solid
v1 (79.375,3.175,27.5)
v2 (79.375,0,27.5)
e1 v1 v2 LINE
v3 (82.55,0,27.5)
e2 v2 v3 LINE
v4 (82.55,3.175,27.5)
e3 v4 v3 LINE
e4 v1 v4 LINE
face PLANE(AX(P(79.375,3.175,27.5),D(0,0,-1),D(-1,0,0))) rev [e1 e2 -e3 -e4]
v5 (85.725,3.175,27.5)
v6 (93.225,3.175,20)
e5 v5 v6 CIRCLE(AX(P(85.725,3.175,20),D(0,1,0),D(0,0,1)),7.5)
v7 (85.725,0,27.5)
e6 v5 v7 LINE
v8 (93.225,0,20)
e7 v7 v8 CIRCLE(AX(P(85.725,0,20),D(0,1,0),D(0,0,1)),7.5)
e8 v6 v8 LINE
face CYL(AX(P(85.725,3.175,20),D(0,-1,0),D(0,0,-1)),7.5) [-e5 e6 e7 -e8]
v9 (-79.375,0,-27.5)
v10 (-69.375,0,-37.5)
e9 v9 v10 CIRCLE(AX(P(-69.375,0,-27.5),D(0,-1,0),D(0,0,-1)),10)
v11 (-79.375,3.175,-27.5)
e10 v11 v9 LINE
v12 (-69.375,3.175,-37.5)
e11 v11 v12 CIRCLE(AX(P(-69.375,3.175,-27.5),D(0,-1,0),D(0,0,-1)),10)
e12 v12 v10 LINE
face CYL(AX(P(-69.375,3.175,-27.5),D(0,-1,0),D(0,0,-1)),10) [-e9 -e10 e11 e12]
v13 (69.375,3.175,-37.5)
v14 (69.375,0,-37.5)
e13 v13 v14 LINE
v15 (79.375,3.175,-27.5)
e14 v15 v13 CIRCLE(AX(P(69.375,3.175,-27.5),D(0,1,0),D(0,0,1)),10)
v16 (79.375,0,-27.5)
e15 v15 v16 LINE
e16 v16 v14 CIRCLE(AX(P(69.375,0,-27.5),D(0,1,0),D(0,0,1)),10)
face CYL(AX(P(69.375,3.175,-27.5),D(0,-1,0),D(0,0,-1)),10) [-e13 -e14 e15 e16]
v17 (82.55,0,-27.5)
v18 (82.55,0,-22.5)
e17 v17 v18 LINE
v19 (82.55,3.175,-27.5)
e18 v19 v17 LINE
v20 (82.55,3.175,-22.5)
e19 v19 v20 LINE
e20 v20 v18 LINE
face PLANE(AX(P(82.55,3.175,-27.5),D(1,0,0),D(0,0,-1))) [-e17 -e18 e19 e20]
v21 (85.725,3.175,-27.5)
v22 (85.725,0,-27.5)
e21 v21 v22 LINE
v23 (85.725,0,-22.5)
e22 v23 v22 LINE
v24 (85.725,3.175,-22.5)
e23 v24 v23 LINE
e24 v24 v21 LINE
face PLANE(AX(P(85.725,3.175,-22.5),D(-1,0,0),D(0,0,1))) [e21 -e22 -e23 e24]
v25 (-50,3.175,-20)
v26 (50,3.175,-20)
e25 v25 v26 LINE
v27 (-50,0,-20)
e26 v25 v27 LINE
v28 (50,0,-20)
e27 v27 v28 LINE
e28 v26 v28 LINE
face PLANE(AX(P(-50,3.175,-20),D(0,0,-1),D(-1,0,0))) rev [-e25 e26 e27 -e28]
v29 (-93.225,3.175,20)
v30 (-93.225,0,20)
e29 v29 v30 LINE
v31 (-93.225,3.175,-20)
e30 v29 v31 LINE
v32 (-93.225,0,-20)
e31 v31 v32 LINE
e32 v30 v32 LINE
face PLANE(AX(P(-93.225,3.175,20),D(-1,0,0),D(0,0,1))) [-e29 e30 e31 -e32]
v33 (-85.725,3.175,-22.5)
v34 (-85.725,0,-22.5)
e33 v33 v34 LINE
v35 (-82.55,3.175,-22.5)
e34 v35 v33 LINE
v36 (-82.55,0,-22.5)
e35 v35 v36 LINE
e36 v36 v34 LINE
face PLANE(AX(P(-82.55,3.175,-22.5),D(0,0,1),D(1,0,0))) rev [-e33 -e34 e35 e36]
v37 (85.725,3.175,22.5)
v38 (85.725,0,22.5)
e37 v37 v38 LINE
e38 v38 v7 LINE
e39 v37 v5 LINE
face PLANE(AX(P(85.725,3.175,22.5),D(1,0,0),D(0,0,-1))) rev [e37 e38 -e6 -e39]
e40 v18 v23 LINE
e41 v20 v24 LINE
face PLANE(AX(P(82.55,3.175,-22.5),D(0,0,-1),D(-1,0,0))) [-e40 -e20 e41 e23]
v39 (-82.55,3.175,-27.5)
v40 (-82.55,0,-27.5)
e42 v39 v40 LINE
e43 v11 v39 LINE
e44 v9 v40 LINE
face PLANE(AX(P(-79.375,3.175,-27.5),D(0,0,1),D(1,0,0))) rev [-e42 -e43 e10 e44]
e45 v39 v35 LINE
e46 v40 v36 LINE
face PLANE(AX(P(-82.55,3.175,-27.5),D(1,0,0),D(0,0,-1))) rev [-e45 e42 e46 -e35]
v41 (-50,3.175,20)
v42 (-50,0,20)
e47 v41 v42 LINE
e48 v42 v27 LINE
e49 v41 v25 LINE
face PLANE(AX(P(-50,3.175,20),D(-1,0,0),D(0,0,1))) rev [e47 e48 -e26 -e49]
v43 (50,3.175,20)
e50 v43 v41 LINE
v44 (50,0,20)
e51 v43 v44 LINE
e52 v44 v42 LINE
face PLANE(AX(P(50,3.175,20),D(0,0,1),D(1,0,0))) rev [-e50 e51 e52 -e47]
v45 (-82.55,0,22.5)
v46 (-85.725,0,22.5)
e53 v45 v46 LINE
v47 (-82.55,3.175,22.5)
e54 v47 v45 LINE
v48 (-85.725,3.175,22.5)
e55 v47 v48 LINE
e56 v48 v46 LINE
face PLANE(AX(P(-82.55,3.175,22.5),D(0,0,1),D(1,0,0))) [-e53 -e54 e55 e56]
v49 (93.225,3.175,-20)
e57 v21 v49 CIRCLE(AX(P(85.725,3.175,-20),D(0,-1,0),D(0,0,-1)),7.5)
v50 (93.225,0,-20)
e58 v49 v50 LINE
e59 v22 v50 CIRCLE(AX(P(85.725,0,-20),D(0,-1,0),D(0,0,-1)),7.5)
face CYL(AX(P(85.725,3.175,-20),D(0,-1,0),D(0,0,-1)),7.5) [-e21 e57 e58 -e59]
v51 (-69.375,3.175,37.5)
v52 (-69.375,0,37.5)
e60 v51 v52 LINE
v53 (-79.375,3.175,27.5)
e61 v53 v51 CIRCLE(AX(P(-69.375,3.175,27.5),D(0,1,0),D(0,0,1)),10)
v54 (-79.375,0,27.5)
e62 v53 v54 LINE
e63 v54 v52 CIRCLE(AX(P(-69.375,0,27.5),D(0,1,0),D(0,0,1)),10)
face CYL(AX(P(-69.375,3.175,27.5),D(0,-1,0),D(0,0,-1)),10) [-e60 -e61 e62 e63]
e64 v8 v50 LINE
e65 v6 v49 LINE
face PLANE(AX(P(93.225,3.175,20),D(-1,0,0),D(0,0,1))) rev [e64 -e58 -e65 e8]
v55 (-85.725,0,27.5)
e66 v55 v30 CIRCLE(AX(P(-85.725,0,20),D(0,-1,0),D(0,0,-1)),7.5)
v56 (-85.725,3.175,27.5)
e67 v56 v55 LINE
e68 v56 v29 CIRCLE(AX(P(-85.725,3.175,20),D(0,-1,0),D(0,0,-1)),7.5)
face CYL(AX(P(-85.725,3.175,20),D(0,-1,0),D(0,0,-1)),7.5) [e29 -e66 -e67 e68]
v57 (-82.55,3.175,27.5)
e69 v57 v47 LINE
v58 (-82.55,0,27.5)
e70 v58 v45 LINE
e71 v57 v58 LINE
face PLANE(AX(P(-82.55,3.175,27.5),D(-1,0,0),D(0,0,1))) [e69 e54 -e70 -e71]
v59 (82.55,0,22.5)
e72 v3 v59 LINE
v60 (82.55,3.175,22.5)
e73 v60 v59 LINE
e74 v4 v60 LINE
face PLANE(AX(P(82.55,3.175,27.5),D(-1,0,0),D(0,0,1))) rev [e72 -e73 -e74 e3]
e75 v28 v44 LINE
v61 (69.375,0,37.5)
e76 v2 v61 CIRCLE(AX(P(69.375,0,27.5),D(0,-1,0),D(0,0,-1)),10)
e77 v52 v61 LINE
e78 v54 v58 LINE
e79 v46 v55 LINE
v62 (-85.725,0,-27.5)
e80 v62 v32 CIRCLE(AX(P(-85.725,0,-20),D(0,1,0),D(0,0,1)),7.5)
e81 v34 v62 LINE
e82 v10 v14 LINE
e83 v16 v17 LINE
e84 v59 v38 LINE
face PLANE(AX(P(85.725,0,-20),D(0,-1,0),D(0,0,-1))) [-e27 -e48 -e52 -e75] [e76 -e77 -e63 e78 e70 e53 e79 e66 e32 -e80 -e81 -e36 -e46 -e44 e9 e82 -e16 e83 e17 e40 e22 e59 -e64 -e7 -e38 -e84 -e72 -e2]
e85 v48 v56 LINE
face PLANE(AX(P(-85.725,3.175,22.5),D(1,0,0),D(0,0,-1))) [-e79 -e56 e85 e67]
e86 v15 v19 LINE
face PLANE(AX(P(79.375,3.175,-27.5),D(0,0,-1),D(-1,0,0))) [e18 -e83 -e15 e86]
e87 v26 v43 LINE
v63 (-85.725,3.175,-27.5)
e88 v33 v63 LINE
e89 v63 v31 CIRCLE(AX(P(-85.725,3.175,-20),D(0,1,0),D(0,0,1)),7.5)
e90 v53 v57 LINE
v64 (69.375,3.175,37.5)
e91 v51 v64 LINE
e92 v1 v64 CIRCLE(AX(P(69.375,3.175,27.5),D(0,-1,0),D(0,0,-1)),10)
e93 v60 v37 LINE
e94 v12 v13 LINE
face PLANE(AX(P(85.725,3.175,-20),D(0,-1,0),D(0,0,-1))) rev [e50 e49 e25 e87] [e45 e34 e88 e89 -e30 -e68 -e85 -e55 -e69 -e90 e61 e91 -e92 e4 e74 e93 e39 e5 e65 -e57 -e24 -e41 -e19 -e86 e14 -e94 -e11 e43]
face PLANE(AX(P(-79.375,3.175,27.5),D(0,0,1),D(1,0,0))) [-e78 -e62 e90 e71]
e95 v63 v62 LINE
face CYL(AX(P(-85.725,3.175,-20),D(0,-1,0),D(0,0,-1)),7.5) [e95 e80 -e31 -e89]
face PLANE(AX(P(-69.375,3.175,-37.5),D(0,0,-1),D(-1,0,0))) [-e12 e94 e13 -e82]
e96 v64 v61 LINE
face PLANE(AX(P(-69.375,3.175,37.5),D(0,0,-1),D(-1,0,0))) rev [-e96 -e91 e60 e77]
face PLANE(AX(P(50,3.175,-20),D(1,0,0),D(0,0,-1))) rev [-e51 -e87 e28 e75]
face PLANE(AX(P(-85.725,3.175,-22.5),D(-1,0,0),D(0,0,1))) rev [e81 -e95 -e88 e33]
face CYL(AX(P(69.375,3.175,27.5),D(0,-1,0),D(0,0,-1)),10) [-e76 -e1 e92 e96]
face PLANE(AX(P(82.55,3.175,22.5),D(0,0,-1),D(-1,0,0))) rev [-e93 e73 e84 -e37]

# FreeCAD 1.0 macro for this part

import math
import FreeCAD as App
import Part
import Sketcher

V = App.Vector

doc = App.newDocument("Part")
params = doc.addObject("Spreadsheet::Sheet", "Params")
for row, (alias, value) in enumerate([
    ("sketch1_radius", "10 mm"),
    ("sketch1_radius2", "7.5 mm"),
    ("sketch1_width", "100 mm"),
    ("sketch1_height", "5 mm"),
    ("sketch1_height2", "40 mm"),
    ("pad1_length", "3.175 mm"),
], start=1):
    params.set(f"A{row}", alias)
    params.set(f"B{row}", "=" + value)
    params.setAlias(f"B{row}", alias)

body = doc.addObject("PartDesign::Body", "Body")

# Sketch on XZ plane
sketch1 = body.newObject("Sketcher::SketchObject", "Sketch")
sketch1.AttachmentSupport = (doc.getObject("XZ_Plane"), [""])
sketch1.MapMode = "FlatFace"
sketch1.addGeometry([
    Part.LineSegment(V(69.4, -37.5, 0), V(-69.4, -37.5, 0)),  # 0
    Part.ArcOfCircle(Part.Circle(V(-69.4, -27.5, 0), V(0, 0, 1), 10), math.radians(180), math.radians(270)),  # 1
    Part.LineSegment(V(-79.4, -27.5, 0), V(-82.5, -27.5, 0)),  # 2
    Part.LineSegment(V(-82.5, -27.5, 0), V(-82.5, -22.5, 0)),  # 3
    Part.LineSegment(V(-82.5, -22.5, 0), V(-85.7, -22.5, 0)),  # 4
    Part.LineSegment(V(-85.7, -22.5, 0), V(-85.7, -27.5, 0)),  # 5
    Part.ArcOfCircle(Part.Circle(V(-85.7, -20, 0), V(0, 0, 1), 7.5), math.radians(180), math.radians(270)),  # 6
    Part.LineSegment(V(-93.2, -20, 0), V(-93.2, 20, 0)),  # 7
    Part.ArcOfCircle(Part.Circle(V(-85.7, 20, 0), V(0, 0, 1), 7.5), math.radians(90), math.radians(180)),  # 8
    Part.LineSegment(V(-85.7, 27.5, 0), V(-85.7, 22.5, 0)),  # 9
    Part.LineSegment(V(-85.7, 22.5, 0), V(-82.5, 22.5, 0)),  # 10
    Part.LineSegment(V(-82.5, 22.5, 0), V(-82.5, 27.5, 0)),  # 11
    Part.LineSegment(V(-82.5, 27.5, 0), V(-79.4, 27.5, 0)),  # 12
    Part.ArcOfCircle(Part.Circle(V(-69.4, 27.5, 0), V(0, 0, 1), 10), math.radians(90), math.radians(180)),  # 13
    Part.LineSegment(V(-69.4, 37.5, 0), V(69.4, 37.5, 0)),  # 14
    Part.ArcOfCircle(Part.Circle(V(69.4, 27.5, 0), V(0, 0, 1), 10), math.radians(0), math.radians(90)),  # 15
    Part.LineSegment(V(79.4, 27.5, 0), V(82.5, 27.5, 0)),  # 16
    Part.LineSegment(V(82.5, 27.5, 0), V(82.5, 22.5, 0)),  # 17
    Part.LineSegment(V(82.5, 22.5, 0), V(85.7, 22.5, 0)),  # 18
    Part.LineSegment(V(85.7, 22.5, 0), V(85.7, 27.5, 0)),  # 19
    Part.ArcOfCircle(Part.Circle(V(85.7, 20, 0), V(0, 0, 1), 7.5), math.radians(0), math.radians(90)),  # 20
    Part.LineSegment(V(93.2, 20, 0), V(93.2, -20, 0)),  # 21
    Part.ArcOfCircle(Part.Circle(V(85.7, -20, 0), V(0, 0, 1), 7.5), math.radians(-90), math.radians(0)),  # 22
    Part.LineSegment(V(85.7, -27.5, 0), V(85.7, -22.5, 0)),  # 23
    Part.LineSegment(V(85.7, -22.5, 0), V(82.5, -22.5, 0)),  # 24
    Part.LineSegment(V(82.5, -22.5, 0), V(82.5, -27.5, 0)),  # 25
    Part.LineSegment(V(82.5, -27.5, 0), V(79.4, -27.5, 0)),  # 26
    Part.ArcOfCircle(Part.Circle(V(69.4, -27.5, 0), V(0, 0, 1), 10), math.radians(-90), math.radians(0)),  # 27
    Part.LineSegment(V(-50, 20, 0), V(-50, -20, 0)),  # 28
    Part.LineSegment(V(-50, -20, 0), V(50, -20, 0)),  # 29
    Part.LineSegment(V(50, -20, 0), V(50, 20, 0)),  # 30
    Part.LineSegment(V(50, 20, 0), V(-50, 20, 0)),  # 31
], False)
sketch1.addConstraint([
    Sketcher.Constraint("Tangent", 0, 2, 1, 2),
    Sketcher.Constraint("Coincident", 1, 1, 2, 1),
    Sketcher.Constraint("Coincident", 2, 2, 3, 1),
    Sketcher.Constraint("Coincident", 3, 2, 4, 1),
    Sketcher.Constraint("Coincident", 4, 2, 5, 1),
    Sketcher.Constraint("Coincident", 5, 2, 6, 2),
    Sketcher.Constraint("Tangent", 6, 1, 7, 1),
    Sketcher.Constraint("Tangent", 7, 2, 8, 2),
    Sketcher.Constraint("Coincident", 8, 1, 9, 1),
    Sketcher.Constraint("Coincident", 9, 2, 10, 1),
    Sketcher.Constraint("Coincident", 10, 2, 11, 1),
    Sketcher.Constraint("Coincident", 11, 2, 12, 1),
    Sketcher.Constraint("Coincident", 12, 2, 13, 2),
    Sketcher.Constraint("Tangent", 13, 1, 14, 1),
    Sketcher.Constraint("Tangent", 14, 2, 15, 2),
    Sketcher.Constraint("Coincident", 15, 1, 16, 1),
    Sketcher.Constraint("Coincident", 16, 2, 17, 1),
    Sketcher.Constraint("Coincident", 17, 2, 18, 1),
    Sketcher.Constraint("Coincident", 18, 2, 19, 1),
    Sketcher.Constraint("Coincident", 19, 2, 20, 2),
    Sketcher.Constraint("Tangent", 20, 1, 21, 1),
    Sketcher.Constraint("Tangent", 21, 2, 22, 2),
    Sketcher.Constraint("Coincident", 22, 1, 23, 1),
    Sketcher.Constraint("Coincident", 23, 2, 24, 1),
    Sketcher.Constraint("Coincident", 24, 2, 25, 1),
    Sketcher.Constraint("Coincident", 25, 2, 26, 1),
    Sketcher.Constraint("Coincident", 26, 2, 27, 2),
    Sketcher.Constraint("Tangent", 27, 1, 0, 1),
    Sketcher.Constraint("Coincident", 28, 2, 29, 1),
    Sketcher.Constraint("Coincident", 29, 2, 30, 1),
    Sketcher.Constraint("Coincident", 30, 2, 31, 1),
    Sketcher.Constraint("Coincident", 31, 2, 28, 1),
    Sketcher.Constraint("Horizontal", 0),
    Sketcher.Constraint("Horizontal", 2),
    Sketcher.Constraint("Vertical", 3),
    Sketcher.Constraint("Horizontal", 4),
    Sketcher.Constraint("Vertical", 5),
    Sketcher.Constraint("Vertical", 7),
    Sketcher.Constraint("Vertical", 9),
    Sketcher.Constraint("Horizontal", 10),
    Sketcher.Constraint("Vertical", 11),
    Sketcher.Constraint("Horizontal", 12),
    Sketcher.Constraint("Horizontal", 14),
    Sketcher.Constraint("Horizontal", 16),
    Sketcher.Constraint("Vertical", 17),
    Sketcher.Constraint("Horizontal", 18),
    Sketcher.Constraint("Vertical", 19),
    Sketcher.Constraint("Vertical", 21),
    Sketcher.Constraint("Vertical", 23),
    Sketcher.Constraint("Horizontal", 24),
    Sketcher.Constraint("Vertical", 25),
    Sketcher.Constraint("Horizontal", 26),
    Sketcher.Constraint("Vertical", 28),
    Sketcher.Constraint("Horizontal", 29),
    Sketcher.Constraint("Vertical", 30),
    Sketcher.Constraint("Horizontal", 31),
    Sketcher.Constraint("Equal", 6, 8),
    Sketcher.Constraint("Equal", 1, 13),
    Sketcher.Constraint("Equal", 13, 15),
    Sketcher.Constraint("Equal", 8, 20),
    Sketcher.Constraint("Equal", 20, 22),
    Sketcher.Constraint("Equal", 15, 27),
    Sketcher.Constraint("Symmetric", 1, 3, 15, 3, -1, 1),
    Sketcher.Constraint("Symmetric", 6, 3, 20, 3, -1, 1),
    Sketcher.Constraint("Symmetric", 2, 2, 16, 2, -1, 1),
    Sketcher.Constraint("Symmetric", 4, 2, 18, 2, -1, 1),
    Sketcher.Constraint("Symmetric", 8, 1, 22, 1, -1, 1),
    Sketcher.Constraint("Symmetric", 10, 2, 24, 2, -1, 1),
    Sketcher.Constraint("Symmetric", 12, 2, 26, 2, -1, 1),
    Sketcher.Constraint("Symmetric", 28, 2, 30, 2, -1, 1),
    Sketcher.Constraint("Symmetric", 12, 2, 15, 1, -2),
    Sketcher.Constraint("Symmetric", 10, 2, 17, 2, -2),
    Sketcher.Constraint("Symmetric", 8, 1, 19, 2, -2),
    Sketcher.Constraint("Horizontal", 27, 3, 1, 1),
    Sketcher.Constraint("Horizontal", 2, 2, 5, 2),
    Sketcher.Constraint("Horizontal", 21, 2, 28, 2),
    Sketcher.Constraint("Vertical", 8, 3, 4, 2),
    Sketcher.Constraint("Equal", 2, 4),
    Sketcher.Constraint("Radius", 1, 10.0),
    Sketcher.Constraint("Radius", 6, 7.5),
    Sketcher.Constraint("DistanceX", 29, 1, 29, 2, 100.0),
    Sketcher.Constraint("DistanceY", 3, 1, 3, 2, 5.0),
    Sketcher.Constraint("DistanceY", 7, 1, 7, 2, 40.0),
    Sketcher.Constraint("DistanceX", 0, 2, 0, 1, 138.75),
    Sketcher.Constraint("DistanceX", 8, 3, 15, 3, 155.1),
])
sketch1.setExpression("Constraints[78]", "Params.sketch1_radius")
sketch1.setExpression("Constraints[79]", "Params.sketch1_radius2")
sketch1.setExpression("Constraints[80]", "Params.sketch1_width")
sketch1.setExpression("Constraints[81]", "Params.sketch1_height")
sketch1.setExpression("Constraints[82]", "Params.sketch1_height2")
pad1 = body.newObject("PartDesign::Pad", "Pad")
pad1.Profile = sketch1
pad1.setExpression("Length", "Params.pad1_length")
pad1.Reversed = True

doc.recompute()
